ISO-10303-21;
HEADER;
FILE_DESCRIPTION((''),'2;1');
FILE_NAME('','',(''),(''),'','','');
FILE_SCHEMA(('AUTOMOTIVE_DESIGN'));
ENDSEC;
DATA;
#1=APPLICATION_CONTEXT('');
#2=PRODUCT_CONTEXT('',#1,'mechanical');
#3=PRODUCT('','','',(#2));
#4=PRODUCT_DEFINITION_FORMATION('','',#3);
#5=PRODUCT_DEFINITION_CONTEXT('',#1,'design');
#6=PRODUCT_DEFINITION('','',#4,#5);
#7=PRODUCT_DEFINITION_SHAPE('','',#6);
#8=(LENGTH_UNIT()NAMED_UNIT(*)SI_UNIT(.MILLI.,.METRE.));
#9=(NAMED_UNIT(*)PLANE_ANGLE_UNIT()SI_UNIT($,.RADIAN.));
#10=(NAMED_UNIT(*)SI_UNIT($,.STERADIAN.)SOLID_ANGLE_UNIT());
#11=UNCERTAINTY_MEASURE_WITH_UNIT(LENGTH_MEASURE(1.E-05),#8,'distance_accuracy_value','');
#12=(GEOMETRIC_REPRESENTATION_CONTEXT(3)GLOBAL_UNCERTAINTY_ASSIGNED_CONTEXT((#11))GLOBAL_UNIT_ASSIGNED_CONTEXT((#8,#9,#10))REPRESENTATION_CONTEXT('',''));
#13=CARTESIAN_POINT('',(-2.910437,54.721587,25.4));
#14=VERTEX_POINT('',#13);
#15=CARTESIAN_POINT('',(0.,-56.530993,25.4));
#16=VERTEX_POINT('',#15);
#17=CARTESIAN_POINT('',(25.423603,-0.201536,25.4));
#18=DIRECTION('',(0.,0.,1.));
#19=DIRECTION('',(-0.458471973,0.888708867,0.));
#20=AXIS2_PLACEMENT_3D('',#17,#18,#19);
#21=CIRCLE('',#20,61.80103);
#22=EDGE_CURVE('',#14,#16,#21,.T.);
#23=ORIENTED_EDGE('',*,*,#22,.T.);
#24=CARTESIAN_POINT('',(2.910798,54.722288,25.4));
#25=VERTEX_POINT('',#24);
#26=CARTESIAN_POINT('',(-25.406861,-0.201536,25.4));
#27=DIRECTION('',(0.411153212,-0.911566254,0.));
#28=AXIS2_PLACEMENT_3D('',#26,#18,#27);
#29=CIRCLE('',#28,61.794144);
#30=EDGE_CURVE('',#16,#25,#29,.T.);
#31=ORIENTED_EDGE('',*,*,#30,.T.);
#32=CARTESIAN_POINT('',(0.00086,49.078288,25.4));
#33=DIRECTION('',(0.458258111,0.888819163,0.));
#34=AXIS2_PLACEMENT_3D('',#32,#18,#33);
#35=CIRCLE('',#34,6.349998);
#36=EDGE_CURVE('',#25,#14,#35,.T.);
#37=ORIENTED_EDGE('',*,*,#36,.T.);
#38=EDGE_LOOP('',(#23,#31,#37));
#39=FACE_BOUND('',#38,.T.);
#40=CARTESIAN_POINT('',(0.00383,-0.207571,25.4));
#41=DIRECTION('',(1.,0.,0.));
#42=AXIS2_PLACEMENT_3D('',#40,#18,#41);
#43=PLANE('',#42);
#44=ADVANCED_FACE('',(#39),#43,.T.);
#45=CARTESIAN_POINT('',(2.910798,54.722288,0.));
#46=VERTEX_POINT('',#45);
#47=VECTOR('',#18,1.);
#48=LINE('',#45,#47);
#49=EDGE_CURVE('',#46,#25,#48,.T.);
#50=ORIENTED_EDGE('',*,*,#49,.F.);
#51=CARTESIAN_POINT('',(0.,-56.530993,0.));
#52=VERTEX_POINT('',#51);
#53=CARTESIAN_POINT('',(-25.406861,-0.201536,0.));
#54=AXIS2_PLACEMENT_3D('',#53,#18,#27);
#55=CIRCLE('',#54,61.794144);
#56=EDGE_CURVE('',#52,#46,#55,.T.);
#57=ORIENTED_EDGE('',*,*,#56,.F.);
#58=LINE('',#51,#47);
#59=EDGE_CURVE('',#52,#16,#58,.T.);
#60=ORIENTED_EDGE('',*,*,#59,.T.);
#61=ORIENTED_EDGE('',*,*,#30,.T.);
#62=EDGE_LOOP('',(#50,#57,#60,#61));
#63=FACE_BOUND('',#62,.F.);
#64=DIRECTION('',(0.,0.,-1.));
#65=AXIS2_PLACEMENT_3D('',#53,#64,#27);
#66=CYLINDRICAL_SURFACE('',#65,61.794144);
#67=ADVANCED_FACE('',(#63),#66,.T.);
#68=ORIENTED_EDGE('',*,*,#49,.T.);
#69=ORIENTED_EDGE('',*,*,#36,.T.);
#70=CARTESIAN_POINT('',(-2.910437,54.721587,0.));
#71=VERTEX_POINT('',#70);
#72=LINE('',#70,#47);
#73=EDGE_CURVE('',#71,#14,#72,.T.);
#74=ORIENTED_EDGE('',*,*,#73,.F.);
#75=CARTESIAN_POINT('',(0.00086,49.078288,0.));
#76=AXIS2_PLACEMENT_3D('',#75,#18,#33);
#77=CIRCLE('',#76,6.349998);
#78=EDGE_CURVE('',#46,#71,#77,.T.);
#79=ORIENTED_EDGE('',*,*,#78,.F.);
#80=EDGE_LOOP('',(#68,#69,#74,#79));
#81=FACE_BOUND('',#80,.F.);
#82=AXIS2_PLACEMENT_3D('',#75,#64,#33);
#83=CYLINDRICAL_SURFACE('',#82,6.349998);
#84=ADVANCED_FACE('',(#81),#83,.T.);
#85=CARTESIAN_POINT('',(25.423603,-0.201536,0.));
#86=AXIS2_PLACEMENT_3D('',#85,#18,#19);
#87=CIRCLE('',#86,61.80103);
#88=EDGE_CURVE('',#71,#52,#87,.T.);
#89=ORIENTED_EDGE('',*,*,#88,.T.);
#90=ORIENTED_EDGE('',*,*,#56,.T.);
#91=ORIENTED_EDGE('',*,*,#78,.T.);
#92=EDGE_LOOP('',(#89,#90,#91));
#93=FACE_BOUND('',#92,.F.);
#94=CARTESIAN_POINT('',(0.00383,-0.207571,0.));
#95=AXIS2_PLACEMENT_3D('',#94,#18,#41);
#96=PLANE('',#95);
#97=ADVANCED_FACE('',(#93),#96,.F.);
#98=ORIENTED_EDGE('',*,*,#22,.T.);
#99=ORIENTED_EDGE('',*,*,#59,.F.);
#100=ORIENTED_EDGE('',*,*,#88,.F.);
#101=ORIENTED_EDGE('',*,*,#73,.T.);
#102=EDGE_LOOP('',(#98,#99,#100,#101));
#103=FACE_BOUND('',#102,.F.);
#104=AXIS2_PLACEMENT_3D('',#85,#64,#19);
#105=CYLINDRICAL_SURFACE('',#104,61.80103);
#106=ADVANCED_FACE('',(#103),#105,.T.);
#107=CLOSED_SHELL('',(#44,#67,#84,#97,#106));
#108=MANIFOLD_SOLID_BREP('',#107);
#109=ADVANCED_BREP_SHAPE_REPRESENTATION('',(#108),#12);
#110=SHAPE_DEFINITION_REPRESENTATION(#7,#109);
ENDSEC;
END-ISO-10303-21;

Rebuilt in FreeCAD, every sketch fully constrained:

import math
import FreeCAD as App
import Part
import Sketcher

V = App.Vector
Q = App.Units.Quantity

doc = App.newDocument("Part")
body = doc.addObject("PartDesign::Body", "Body")

# Sketch on XY plane
sketch1 = body.newObject("Sketcher::SketchObject", "Sketch")
sketch1.AttachmentSupport = (doc.getObject("XY_Plane"), [""])
sketch1.MapMode = "FlatFace"
sketch1.addGeometry([
    Part.ArcOfCircle(Part.Circle(V(25.423603, -0.201536, 0), V(0, 0, 1), 61.80103), math.radians(117.288551), math.radians(245.708553)),
    Part.ArcOfCircle(Part.Circle(V(-25.406861, -0.201536, 0), V(0, 0, 1), 61.794144), math.radians(-65.722702), math.radians(62.725246)),
    Part.ArcOfCircle(Part.Circle(V(0.00086, 49.078288, 0), V(0, 0, 1), 6.349998), math.radians(62.725236), math.radians(117.288563)),
], False)
sketch1.addConstraint([
    Sketcher.Constraint("Coincident", 0, 2, 1, 1),
    Sketcher.Constraint("Tangent", 1, 2, 2, 1),
    Sketcher.Constraint("Tangent", 2, 2, 0, 1),
    Sketcher.Constraint("PointOnObject", 0, 2, -2),
    Sketcher.Constraint("Horizontal", 0, 3, 1, 3),
    Sketcher.Constraint("Radius", 2, Q("0.2499999 in")),
    Sketcher.Constraint("Radius", 0, Q("61.80103 mm")),
    Sketcher.Constraint("Radius", 1, Q("61.794144 mm")),
    Sketcher.Constraint("DistanceY", 2, 3, 2, 2, Q("5.643299 mm")),
    Sketcher.Constraint("DistanceY", -1, 1, 2, 3, Q("49.078288 mm")),
])
pad1 = body.newObject("PartDesign::Pad", "Pad")
pad1.Profile = sketch1
pad1.Length = Q("1 in")

doc.recompute()
